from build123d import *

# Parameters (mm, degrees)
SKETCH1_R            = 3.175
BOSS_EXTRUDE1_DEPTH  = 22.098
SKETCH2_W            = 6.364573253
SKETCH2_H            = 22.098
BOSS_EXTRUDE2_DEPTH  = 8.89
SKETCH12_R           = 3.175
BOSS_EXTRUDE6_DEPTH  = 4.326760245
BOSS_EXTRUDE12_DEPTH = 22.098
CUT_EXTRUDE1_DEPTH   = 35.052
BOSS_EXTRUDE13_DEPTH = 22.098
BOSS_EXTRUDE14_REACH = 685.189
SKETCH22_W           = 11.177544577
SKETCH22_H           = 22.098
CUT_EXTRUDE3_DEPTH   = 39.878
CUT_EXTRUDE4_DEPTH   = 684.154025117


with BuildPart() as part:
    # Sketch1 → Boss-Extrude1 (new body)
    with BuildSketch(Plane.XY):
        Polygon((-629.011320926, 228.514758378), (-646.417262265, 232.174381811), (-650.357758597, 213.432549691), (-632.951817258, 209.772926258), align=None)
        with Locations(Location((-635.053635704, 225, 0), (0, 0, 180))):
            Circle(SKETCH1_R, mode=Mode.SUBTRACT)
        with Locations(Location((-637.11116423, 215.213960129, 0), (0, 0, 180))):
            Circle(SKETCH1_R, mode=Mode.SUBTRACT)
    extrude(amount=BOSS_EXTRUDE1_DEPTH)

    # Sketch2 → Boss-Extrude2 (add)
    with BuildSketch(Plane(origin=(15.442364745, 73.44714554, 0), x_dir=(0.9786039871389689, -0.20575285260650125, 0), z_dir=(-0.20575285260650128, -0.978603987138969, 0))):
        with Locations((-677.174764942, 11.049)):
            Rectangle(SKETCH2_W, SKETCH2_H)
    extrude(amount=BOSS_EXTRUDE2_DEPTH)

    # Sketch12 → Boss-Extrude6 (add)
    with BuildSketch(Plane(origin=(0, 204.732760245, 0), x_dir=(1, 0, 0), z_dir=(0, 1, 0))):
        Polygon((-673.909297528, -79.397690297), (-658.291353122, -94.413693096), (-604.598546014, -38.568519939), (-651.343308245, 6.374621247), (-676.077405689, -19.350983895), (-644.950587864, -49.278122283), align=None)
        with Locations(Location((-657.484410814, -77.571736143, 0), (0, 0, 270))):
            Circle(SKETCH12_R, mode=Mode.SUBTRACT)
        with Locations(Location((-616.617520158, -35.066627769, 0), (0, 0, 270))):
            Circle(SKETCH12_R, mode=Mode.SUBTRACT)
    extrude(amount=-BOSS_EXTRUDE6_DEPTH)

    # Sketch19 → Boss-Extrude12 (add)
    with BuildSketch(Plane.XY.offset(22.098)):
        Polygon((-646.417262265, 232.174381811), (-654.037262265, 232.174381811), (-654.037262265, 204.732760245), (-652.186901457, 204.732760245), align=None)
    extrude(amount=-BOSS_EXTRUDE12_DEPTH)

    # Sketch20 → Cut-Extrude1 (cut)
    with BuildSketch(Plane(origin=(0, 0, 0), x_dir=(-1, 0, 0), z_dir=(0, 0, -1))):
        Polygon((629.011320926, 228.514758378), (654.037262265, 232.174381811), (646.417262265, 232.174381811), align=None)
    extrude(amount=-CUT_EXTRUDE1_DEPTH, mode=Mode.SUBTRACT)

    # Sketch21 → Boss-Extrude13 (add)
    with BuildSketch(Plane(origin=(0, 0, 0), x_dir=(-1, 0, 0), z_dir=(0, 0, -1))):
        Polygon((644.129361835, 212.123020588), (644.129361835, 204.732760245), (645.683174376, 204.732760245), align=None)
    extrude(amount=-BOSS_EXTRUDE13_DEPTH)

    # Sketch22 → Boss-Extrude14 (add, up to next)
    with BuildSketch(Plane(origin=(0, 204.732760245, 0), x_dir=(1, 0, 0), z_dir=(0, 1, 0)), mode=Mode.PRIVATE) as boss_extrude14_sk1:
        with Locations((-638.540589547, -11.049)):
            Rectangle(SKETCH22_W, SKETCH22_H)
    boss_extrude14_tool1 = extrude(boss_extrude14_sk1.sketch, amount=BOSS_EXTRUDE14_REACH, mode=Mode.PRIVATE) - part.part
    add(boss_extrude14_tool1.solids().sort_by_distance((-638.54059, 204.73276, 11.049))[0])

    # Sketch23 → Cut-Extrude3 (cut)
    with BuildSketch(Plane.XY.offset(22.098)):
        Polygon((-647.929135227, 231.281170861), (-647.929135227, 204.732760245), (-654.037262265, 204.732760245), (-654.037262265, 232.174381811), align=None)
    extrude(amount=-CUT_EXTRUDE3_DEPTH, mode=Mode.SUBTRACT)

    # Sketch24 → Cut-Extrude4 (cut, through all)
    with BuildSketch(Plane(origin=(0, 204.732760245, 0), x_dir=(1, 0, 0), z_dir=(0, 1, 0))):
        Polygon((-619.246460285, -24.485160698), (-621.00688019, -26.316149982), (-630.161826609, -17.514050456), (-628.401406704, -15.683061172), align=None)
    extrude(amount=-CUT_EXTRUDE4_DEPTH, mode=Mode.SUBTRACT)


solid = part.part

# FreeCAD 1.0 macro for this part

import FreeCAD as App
import Part
import Sketcher

V = App.Vector
Q = App.Units.Quantity


def add_polygon(sketch, points):
    """Adds a closed chain of lines whose ends are joined by coincident constraints."""
    first, n = sketch.GeometryCount, len(points)
    for a, b in zip(points, points[1:] + points[:1]):
        sketch.addGeometry(Part.LineSegment(App.Vector(*a, 0), App.Vector(*b, 0)), False)
    for i in range(n):
        sketch.addConstraint(Sketcher.Constraint("Coincident", first + i, 2, first + (i + 1) % n, 1))

doc = App.newDocument("Part")
body = doc.addObject("PartDesign::Body", "Body")

sketch1 = body.newObject("Sketcher::SketchObject", "Sketch")
sketch1.AttachmentSupport = (doc.getObject("XY_Plane"), [""])
sketch1.MapMode = "FlatFace"
add_polygon(sketch1, [(-629, 228.5), (-646.4, 232.2), (-650.4, 213.4), (-633, 209.8)])
sketch1.addGeometry(Part.Circle(V(-637.1, 215.2, 0), V(0, 0, 1), 3.2), False)
sketch1.addGeometry(Part.Circle(V(-635.1, 225, 0), V(0, 0, 1), 3.2), False)
sketch1.addConstraint([
    Sketcher.Constraint("Equal", 4, 5),
    Sketcher.Constraint("Perpendicular", 0, 1),
    Sketcher.Constraint("Perpendicular", 1, 2),
    Sketcher.Constraint("Perpendicular", 2, 3),
    Sketcher.Constraint("Diameter", 4, Q("0.25 in")),
    Sketcher.Constraint("Distance", 1, Q("0.754 in")),
    Sketcher.Constraint("Distance", 0, Q("17.786502 mm")),
    Sketcher.Constraint("DistanceY", -1, 1, 5, 3, Q("225 mm")),
    Sketcher.Constraint("DistanceX", 0, 2, 4, 3, Q("9.306098 mm")),
    Sketcher.Constraint("DistanceY", 4, 3, 3, 2, Q("13.300798 mm")),
    Sketcher.Constraint("DistanceY", -1, 1, 4, 3, Q("215.21396 mm")),
    Sketcher.Constraint("DistanceY", -1, 1, 0, 2, Q("232.174382 mm")),
    Sketcher.Constraint("DistanceX", 1, 2, -1, 1, Q("650.357759 mm")),
    Sketcher.Constraint("DistanceX", 4, 3, 5, 3, Q("2.057529 mm")),
])
pad1 = body.newObject("PartDesign::Pad", "Pad")
pad1.Profile = sketch1
pad1.Length = Q("0.87 in")

sketch2 = body.newObject("Sketcher::SketchObject", "Sketch001")
sketch2.Placement = App.Placement(V(15.442365, 73.447146, 0), App.Rotation(V(0.978603987, -0.205752853, 0), V(0, 0, 1), V(-0.205752853, -0.978603987, 0), "ZXY"))
add_polygon(sketch2, [(-680, 22), (-680, 0), (-674, 0), (-674, 22)])
sketch2.addConstraint([
    Sketcher.Constraint("Vertical", 0),
    Sketcher.Constraint("Horizontal", 1),
    Sketcher.Constraint("Vertical", 2),
    Sketcher.Constraint("Horizontal", 3),
    Sketcher.Constraint("PointOnObject", 0, 2, -1),
    Sketcher.Constraint("DistanceY", 0, 2, 0, 1, Q("0.87 in")),
    Sketcher.Constraint("DistanceX", 1, 1, 1, 2, Q("6.364573 mm")),
    Sketcher.Constraint("DistanceX", 0, 2, -1, 1, Q("680.357051 mm")),
])
pad2 = body.newObject("PartDesign::Pad", "Pad001")
pad2.Profile = sketch2
pad2.Length = Q("0.35 in")

sketch3 = body.newObject("Sketcher::SketchObject", "Sketch002")
sketch3.AttachmentSupport = (doc.getObject("XZ_Plane"), [""])
sketch3.MapMode = "FlatFace"
sketch3.AttachmentOffset = App.Placement(V(0, 0, -204.73276), App.Rotation())
add_polygon(sketch3, [(-673.9, 79.4), (-658.3, 94.4), (-604.6, 38.6), (-651.3, -6.4), (-676.1, 19.4), (-645, 49.3)])
sketch3.addGeometry(Part.Circle(V(-657.5, 77.6, 0), V(0, 0, 1), 3.2), False)
sketch3.addGeometry(Part.Circle(V(-616.6, 35.1, 0), V(0, 0, 1), 3.2), False)
sketch3.addConstraint([
    Sketcher.Constraint("Equal", 6, 7),
    Sketcher.Constraint("Perpendicular", 0, 1),
    Sketcher.Constraint("Perpendicular", 1, 2),
    Sketcher.Constraint("Perpendicular", 2, 3),
    Sketcher.Constraint("Perpendicular", 3, 4),
    Sketcher.Constraint("Perpendicular", 4, 5),
    Sketcher.Constraint("Diameter", 6, Q("0.25 in")),
    Sketcher.Constraint("Distance", 4, Q("1.7 in")),
    Sketcher.Constraint("Distance", 1, Q("3.05 in")),
    Sketcher.Constraint("DistanceX", 6, 3, -1, 1, Q("657.484411 mm")),
    Sketcher.Constraint("DistanceX", 7, 3, -1, 1, Q("616.61752 mm")),
    Sketcher.Constraint("DistanceY", -1, 1, 1, 2, Q("38.56852 mm")),
    Sketcher.Constraint("DistanceX", 2, 2, -1, 1, Q("651.343308 mm")),
    Sketcher.Constraint("DistanceY", 2, 2, -1, 1, Q("6.374621 mm")),
    Sketcher.Constraint("DistanceY", -1, 1, 5, 2, Q("79.39769 mm")),
    Sketcher.Constraint("DistanceY", 7, 3, 6, 3, Q("42.505108 mm")),
    Sketcher.Constraint("DistanceY", 2, 2, 7, 3, Q("41.441249 mm")),
    Sketcher.Constraint("DistanceX", 3, 2, 1, 2, Q("71.47886 mm")),
])
pad3 = body.newObject("PartDesign::Pad", "Pad002")
pad3.Profile = sketch3
pad3.Length = 4.32676

sketch4 = body.newObject("Sketcher::SketchObject", "Sketch003")
sketch4.AttachmentSupport = (doc.getObject("XY_Plane"), [""])
sketch4.MapMode = "FlatFace"
sketch4.AttachmentOffset = App.Placement(V(0, 0, 0.87 * 25.4), App.Rotation())
add_polygon(sketch4, [(-646.4, 232.2), (-654, 232.2), (-654, 204.7), (-652.2, 204.7)])
sketch4.addConstraint([
    Sketcher.Constraint("Horizontal", 0),
    Sketcher.Constraint("Vertical", 1),
    Sketcher.Constraint("Horizontal", 2),
    Sketcher.Constraint("DistanceX", 0, 2, 0, 1, Q("0.3 in")),
    Sketcher.Constraint("Distance", 3, Q("1.104 in")),
    Sketcher.Constraint("DistanceX", 2, 1, 2, 2, Q("1.850361 mm")),
    Sketcher.Constraint("DistanceX", 2, 2, -1, 1, Q("652.186901 mm")),
    Sketcher.Constraint("DistanceY", -1, 1, 0, 2, Q("232.174382 mm")),
])
pad4 = body.newObject("PartDesign::Pad", "Pad003")
pad4.Profile = sketch4
pad4.Length = Q("0.87 in")
pad4.Reversed = True

sketch5 = body.newObject("Sketcher::SketchObject", "Sketch004")
sketch5.AttachmentSupport = (doc.getObject("XY_Plane"), [""])
sketch5.MapMode = "FlatFace"
add_polygon(sketch5, [(-629, 229), (-654, 232), (-646, 232)])
sketch5.addConstraint([
    Sketcher.Constraint("Horizontal", 1),
    Sketcher.Constraint("DistanceX", 1, 1, 1, 2, Q("0.3 in")),
    Sketcher.Constraint("Distance", 2, Q("17.786502 mm")),
    Sketcher.Constraint("DistanceY", -1, 1, 0, 2, Q("232.174382 mm")),
    Sketcher.Constraint("DistanceX", 2, 2, -1, 1, Q("629.011321 mm")),
    Sketcher.Constraint("DistanceY", -1, 1, 2, 2, Q("228.514758 mm")),
])
pocket1 = body.newObject("PartDesign::Pocket", "Pocket")
pocket1.Profile = sketch5
pocket1.Length = Q("1.38 in")
pocket1.Reversed = True

sketch6 = body.newObject("Sketcher::SketchObject", "Sketch005")
sketch6.AttachmentSupport = (doc.getObject("XY_Plane"), [""])
sketch6.MapMode = "FlatFace"
add_polygon(sketch6, [(-644.1, 212.1), (-644.1, 204.7), (-645.7, 204.7)])
sketch6.addConstraint([
    Sketcher.Constraint("Vertical", 0),
    Sketcher.Constraint("Horizontal", 1),
    Sketcher.Constraint("DistanceY", -1, 1, 2, 2, Q("8.3513 in")),
    Sketcher.Constraint("DistanceY", 0, 2, 0, 1, Q("7.39026 mm")),
    Sketcher.Constraint("Distance", 2, Q("7.55184 mm")),
    Sketcher.Constraint("DistanceX", 0, 2, -1, 1, Q("644.129362 mm")),
])
pad5 = body.newObject("PartDesign::Pad", "Pad004")
pad5.Profile = sketch6
pad5.Length = Q("0.87 in")

sketch7 = body.newObject("Sketcher::SketchObject", "Sketch006")
sketch7.AttachmentSupport = (doc.getObject("XZ_Plane"), [""])
sketch7.MapMode = "FlatFace"
sketch7.AttachmentOffset = App.Placement(V(0, 0, -204.73276), App.Rotation())
add_polygon(sketch7, [(-644, 0), (-644, 22), (-633, 22), (-633, 0)])
sketch7.addConstraint([
    Sketcher.Constraint("Vertical", 0),
    Sketcher.Constraint("Horizontal", 1),
    Sketcher.Constraint("Vertical", 2),
    Sketcher.Constraint("Horizontal", 3),
    Sketcher.Constraint("PointOnObject", 2, 2, -1),
    Sketcher.Constraint("DistanceY", 0, 1, 0, 2, Q("0.87 in")),
    Sketcher.Constraint("DistanceX", 1, 1, 1, 2, Q("11.177545 mm")),
    Sketcher.Constraint("DistanceX", 0, 2, -1, 1, Q("644.129362 mm")),
])
pad6 = body.newObject("PartDesign::Pad", "Pad005")
pad6.Profile = sketch7
pad6.Type = "UpToFirst"
pad6.Reversed = True

sketch8 = body.newObject("Sketcher::SketchObject", "Sketch007")
sketch8.AttachmentSupport = (doc.getObject("XY_Plane"), [""])
sketch8.MapMode = "FlatFace"
sketch8.AttachmentOffset = App.Placement(V(0, 0, 0.87 * 25.4), App.Rotation())
add_polygon(sketch8, [(-648, 205), (-648, 231), (-654, 232), (-654, 205)])
sketch8.addConstraint([
    Sketcher.Constraint("Vertical", 0),
    Sketcher.Constraint("Vertical", 2),
    Sketcher.Constraint("Horizontal", 3),
    Sketcher.Constraint("DistanceY", 0, 1, 0, 2, Q("26.548411 mm")),
    Sketcher.Constraint("DistanceY", 2, 2, 2, 1, Q("27.441622 mm")),
    Sketcher.Constraint("Distance", 1, Q("6.17309 mm")),
    Sketcher.Constraint("DistanceY", -1, 1, 0, 2, Q("231.281171 mm")),
    Sketcher.Constraint("DistanceX", 0, 2, -1, 1, Q("647.929135 mm")),
])
pocket2 = body.newObject("PartDesign::Pocket", "Pocket001")
pocket2.Profile = sketch8
pocket2.Length = Q("1.57 in")

sketch9 = body.newObject("Sketcher::SketchObject", "Sketch008")
sketch9.AttachmentSupport = (doc.getObject("XZ_Plane"), [""])
sketch9.MapMode = "FlatFace"
sketch9.AttachmentOffset = App.Placement(V(0, 0, -204.73276), App.Rotation())
add_polygon(sketch9, [(-621, 26.3), (-619.2, 24.5), (-628.4, 15.7), (-630.2, 17.5)])
sketch9.addConstraint([
    Sketcher.Constraint("Perpendicular", 0, 1),
    Sketcher.Constraint("Perpendicular", 1, 2),
    Sketcher.Constraint("Perpendicular", 2, 3),
    Sketcher.Constraint("Distance", 0, Q("0.1 in")),
    Sketcher.Constraint("Distance", 1, Q("0.5 in")),
    Sketcher.Constraint("DistanceY", 1, 2, 0, 2, Q("8.8021 mm")),
    Sketcher.Constraint("DistanceX", 0, 2, -1, 1, Q("619.24646 mm")),
    Sketcher.Constraint("DistanceY", -1, 1, 0, 2, Q("24.485161 mm")),
])
pocket3 = body.newObject("PartDesign::Pocket", "Pocket002")
pocket3.Profile = sketch9
pocket3.Type = "ThroughAll"
pocket3.Reversed = True

doc.recompute()
